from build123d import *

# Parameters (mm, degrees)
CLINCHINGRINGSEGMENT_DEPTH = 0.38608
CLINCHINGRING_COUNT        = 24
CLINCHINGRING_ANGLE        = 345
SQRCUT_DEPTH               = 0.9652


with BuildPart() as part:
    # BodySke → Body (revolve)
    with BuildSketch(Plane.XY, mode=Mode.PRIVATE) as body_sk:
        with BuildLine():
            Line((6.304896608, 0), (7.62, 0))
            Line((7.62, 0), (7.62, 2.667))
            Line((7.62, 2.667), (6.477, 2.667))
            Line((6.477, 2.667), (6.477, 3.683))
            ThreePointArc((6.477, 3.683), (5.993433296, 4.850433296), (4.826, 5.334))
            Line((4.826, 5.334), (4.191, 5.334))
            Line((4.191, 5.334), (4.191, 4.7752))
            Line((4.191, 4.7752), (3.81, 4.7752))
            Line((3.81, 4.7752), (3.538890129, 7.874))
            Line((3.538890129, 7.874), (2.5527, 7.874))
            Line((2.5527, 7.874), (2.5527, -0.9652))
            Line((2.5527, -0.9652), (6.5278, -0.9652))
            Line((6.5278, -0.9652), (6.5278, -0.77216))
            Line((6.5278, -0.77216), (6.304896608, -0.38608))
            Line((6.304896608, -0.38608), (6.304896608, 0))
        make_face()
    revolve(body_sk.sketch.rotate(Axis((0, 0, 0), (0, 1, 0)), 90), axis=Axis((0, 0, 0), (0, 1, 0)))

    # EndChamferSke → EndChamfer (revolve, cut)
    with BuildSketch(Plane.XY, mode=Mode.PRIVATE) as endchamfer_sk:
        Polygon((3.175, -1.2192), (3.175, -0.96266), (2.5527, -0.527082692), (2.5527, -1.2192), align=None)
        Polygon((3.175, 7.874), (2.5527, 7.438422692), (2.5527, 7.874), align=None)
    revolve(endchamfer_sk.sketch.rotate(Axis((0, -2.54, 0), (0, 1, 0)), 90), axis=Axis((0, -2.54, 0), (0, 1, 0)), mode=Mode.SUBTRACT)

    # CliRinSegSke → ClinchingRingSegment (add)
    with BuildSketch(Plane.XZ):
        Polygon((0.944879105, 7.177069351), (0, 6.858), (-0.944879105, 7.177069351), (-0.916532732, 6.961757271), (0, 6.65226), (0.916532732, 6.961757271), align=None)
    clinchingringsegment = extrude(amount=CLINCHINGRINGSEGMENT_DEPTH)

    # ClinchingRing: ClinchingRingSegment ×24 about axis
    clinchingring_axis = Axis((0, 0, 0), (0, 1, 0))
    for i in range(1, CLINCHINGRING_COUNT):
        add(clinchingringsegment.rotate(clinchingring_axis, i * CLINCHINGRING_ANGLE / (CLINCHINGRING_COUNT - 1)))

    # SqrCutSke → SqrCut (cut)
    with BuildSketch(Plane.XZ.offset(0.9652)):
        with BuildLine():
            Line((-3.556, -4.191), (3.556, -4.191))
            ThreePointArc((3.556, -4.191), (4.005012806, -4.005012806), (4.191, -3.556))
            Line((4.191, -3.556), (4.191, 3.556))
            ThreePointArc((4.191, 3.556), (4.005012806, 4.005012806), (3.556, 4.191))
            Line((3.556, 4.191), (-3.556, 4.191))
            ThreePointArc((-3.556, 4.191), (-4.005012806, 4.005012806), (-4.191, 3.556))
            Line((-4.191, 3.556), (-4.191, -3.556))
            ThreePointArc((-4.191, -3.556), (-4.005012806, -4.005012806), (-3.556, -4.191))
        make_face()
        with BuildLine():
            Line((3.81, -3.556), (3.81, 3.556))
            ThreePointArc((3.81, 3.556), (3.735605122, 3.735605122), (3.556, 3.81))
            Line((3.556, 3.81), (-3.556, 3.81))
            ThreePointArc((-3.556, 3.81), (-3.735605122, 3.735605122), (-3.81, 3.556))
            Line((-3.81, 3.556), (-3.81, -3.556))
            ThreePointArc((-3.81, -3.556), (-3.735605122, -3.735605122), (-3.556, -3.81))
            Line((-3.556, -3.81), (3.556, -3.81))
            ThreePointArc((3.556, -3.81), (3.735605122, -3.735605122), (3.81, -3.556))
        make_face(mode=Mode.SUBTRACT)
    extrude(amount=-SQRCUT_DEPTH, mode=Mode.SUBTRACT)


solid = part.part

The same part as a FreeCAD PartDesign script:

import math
import FreeCAD as App
import Part
import Sketcher
Q = App.Units.Quantity

doc = App.newDocument("Part")
body = doc.addObject("PartDesign::Body", "Body")

sketch1 = doc.addObject("Sketcher::SketchObject", "Sketch")
body.addObject(sketch1)
sketch1.AttachmentSupport = (doc.XY_Plane, [""])
sketch1.MapMode = "FlatFace"
sketch1.addGeometry([
    Part.LineSegment(App.Vector(6.3, 0, 0), App.Vector(7.62, 0, 0)),
    Part.LineSegment(App.Vector(7.62, 0, 0), App.Vector(7.62, 2.67, 0)),
    Part.LineSegment(App.Vector(7.62, 2.67, 0), App.Vector(6.48, 2.67, 0)),
    Part.LineSegment(App.Vector(6.48, 2.67, 0), App.Vector(6.48, 3.68, 0)),
    Part.ArcOfCircle(Part.Circle(App.Vector(4.83, 3.68, 0), App.Vector(0, 0, 1), 1.65), math.radians(0), math.radians(90)),
    Part.LineSegment(App.Vector(4.83, 5.33, 0), App.Vector(4.19, 5.33, 0)),
    Part.LineSegment(App.Vector(4.19, 5.33, 0), App.Vector(4.19, 4.78, 0)),
    Part.LineSegment(App.Vector(4.19, 4.78, 0), App.Vector(3.81, 4.78, 0)),
    Part.LineSegment(App.Vector(3.81, 4.78, 0), App.Vector(3.54, 7.87, 0)),
    Part.LineSegment(App.Vector(3.54, 7.87, 0), App.Vector(2.55, 7.87, 0)),
    Part.LineSegment(App.Vector(2.55, 7.87, 0), App.Vector(2.55, -0.97, 0)),
    Part.LineSegment(App.Vector(2.55, -0.97, 0), App.Vector(6.53, -0.97, 0)),
    Part.LineSegment(App.Vector(6.53, -0.97, 0), App.Vector(6.53, -0.77, 0)),
    Part.LineSegment(App.Vector(6.53, -0.77, 0), App.Vector(6.3, -0.39, 0)),
    Part.LineSegment(App.Vector(6.3, -0.39, 0), App.Vector(6.3, 0, 0)),
], False)
sketch1.addConstraint([
    Sketcher.Constraint("Coincident", 0, 2, 1, 1),
    Sketcher.Constraint("Coincident", 1, 2, 2, 1),
    Sketcher.Constraint("Coincident", 2, 2, 3, 1),
    Sketcher.Constraint("Tangent", 3, 2, 4, 1),
    Sketcher.Constraint("Tangent", 4, 2, 5, 1),
    Sketcher.Constraint("Coincident", 5, 2, 6, 1),
    Sketcher.Constraint("Coincident", 6, 2, 7, 1),
    Sketcher.Constraint("Coincident", 7, 2, 8, 1),
    Sketcher.Constraint("Coincident", 8, 2, 9, 1),
    Sketcher.Constraint("Coincident", 9, 2, 10, 1),
    Sketcher.Constraint("Coincident", 10, 2, 11, 1),
    Sketcher.Constraint("Coincident", 11, 2, 12, 1),
    Sketcher.Constraint("Coincident", 12, 2, 13, 1),
    Sketcher.Constraint("Coincident", 13, 2, 14, 1),
    Sketcher.Constraint("Coincident", 14, 2, 0, 1),
    Sketcher.Constraint("Horizontal", 0),
    Sketcher.Constraint("Vertical", 1),
    Sketcher.Constraint("Horizontal", 2),
    Sketcher.Constraint("Vertical", 3),
    Sketcher.Constraint("Horizontal", 5),
    Sketcher.Constraint("Vertical", 6),
    Sketcher.Constraint("Horizontal", 7),
    Sketcher.Constraint("Horizontal", 9),
    Sketcher.Constraint("Vertical", 10),
    Sketcher.Constraint("Horizontal", 11),
    Sketcher.Constraint("Vertical", 12),
    Sketcher.Constraint("Vertical", 14),
    Sketcher.Constraint("PointOnObject", 0, 2, -1),
    Sketcher.Constraint("Angle", 8, Q("95 deg")),
    Sketcher.Constraint("Angle", 13, Q("120 deg")),
    Sketcher.Constraint("Radius", 4, Q("0.065 in")),
    Sketcher.Constraint("DistanceY", 3, 1, 3, 2, Q("0.04 in")),
    Sketcher.Constraint("DistanceX", -1, 1, 0, 2, Q("0.3 in")),
    Sketcher.Constraint("DistanceY", 5, 2, 8, 2, Q("0.1 in")),
    Sketcher.Constraint("DistanceX", 2, 2, 2, 1, Q("0.045 in")),
    Sketcher.Constraint("DistanceX", 5, 2, 5, 1, Q("0.025 in")),
    Sketcher.Constraint("DistanceX", 7, 2, 7, 1, Q("0.015 in")),
    Sketcher.Constraint("DistanceY", 1, 1, 1, 2, Q("0.105 in")),
    Sketcher.Constraint("DistanceY", 6, 2, 6, 1, Q("0.022 in")),
    Sketcher.Constraint("DistanceY", 10, 2, 10, 1, Q("0.348 in")),
    Sketcher.Constraint("DistanceX", 11, 1, 11, 2, Q("0.1565 in")),
    Sketcher.Constraint("DistanceY", 12, 1, 12, 2, Q("0.0076 in")),
    Sketcher.Constraint("DistanceY", 14, 1, 14, 2, Q("0.0152 in")),
    Sketcher.Constraint("DistanceX", -1, 1, 11, 2, Q("0.257 in")),
])
revolution = doc.addObject("PartDesign::Revolution", "Revolution")
body.addObject(revolution)
revolution.Profile = sketch1
revolution.ReferenceAxis = (sketch1, ["V_Axis"])
revolution.Angle = 360

sketch2 = doc.addObject("Sketcher::SketchObject", "Sketch001")
body.addObject(sketch2)
sketch2.AttachmentSupport = (doc.XY_Plane, [""])
sketch2.MapMode = "FlatFace"
sketch2.addGeometry([
    Part.LineSegment(App.Vector(3.17, -1.22, 0), App.Vector(3.17, -0.96, 0)),
    Part.LineSegment(App.Vector(3.17, -0.96, 0), App.Vector(2.55, -0.53, 0)),
    Part.LineSegment(App.Vector(2.55, -0.53, 0), App.Vector(2.55, -1.22, 0)),
    Part.LineSegment(App.Vector(2.55, -1.22, 0), App.Vector(3.17, -1.22, 0)),
    Part.LineSegment(App.Vector(2.55, 7.44, 0), App.Vector(3.17, 7.87, 0)),
    Part.LineSegment(App.Vector(3.17, 7.87, 0), App.Vector(2.55, 7.87, 0)),
    Part.LineSegment(App.Vector(2.55, 7.87, 0), App.Vector(2.55, 7.44, 0)),
], False)
sketch2.addConstraint([
    Sketcher.Constraint("Coincident", 0, 2, 1, 1),
    Sketcher.Constraint("Coincident", 1, 2, 2, 1),
    Sketcher.Constraint("Coincident", 2, 2, 3, 1),
    Sketcher.Constraint("Coincident", 3, 2, 0, 1),
    Sketcher.Constraint("Coincident", 4, 2, 5, 1),
    Sketcher.Constraint("Coincident", 5, 2, 6, 1),
    Sketcher.Constraint("Coincident", 6, 2, 4, 1),
    Sketcher.Constraint("Vertical", 0),
    Sketcher.Constraint("Vertical", 2),
    Sketcher.Constraint("Horizontal", 3),
    Sketcher.Constraint("Horizontal", 5),
    Sketcher.Constraint("Vertical", 6),
    Sketcher.Constraint("Vertical", 3, 2, 4, 2),
    Sketcher.Constraint("Vertical", 2, 2, 5, 2),
    Sketcher.Constraint("Equal", 1, 4),
    Sketcher.Constraint("DistanceY", -1, 1, 4, 2, Q("0.31 in")),
    Sketcher.Constraint("Angle", 1, Q("145.01 deg")),
    Sketcher.Constraint("DistanceX", 3, 1, 3, 2, Q("0.0245 in")),
    Sketcher.Constraint("DistanceY", 0, 1, 0, 2, Q("0.0101 in")),
    Sketcher.Constraint("DistanceX", -1, 1, 0, 2, Q("0.125 in")),
    Sketcher.Constraint("DistanceY", 2, 2, -1, 1, Q("0.048 in")),
])
groove = doc.addObject("PartDesign::Groove", "Groove")
body.addObject(groove)
groove.Profile = sketch2
groove.ReferenceAxis = (sketch2, ["V_Axis"])
groove.Angle = 360

sketch3 = doc.addObject("Sketcher::SketchObject", "Sketch002")
body.addObject(sketch3)
sketch3.AttachmentSupport = (doc.XZ_Plane, [""])
sketch3.MapMode = "FlatFace"
sketch3.addGeometry([
    Part.LineSegment(App.Vector(0.94, 7.18, 0), App.Vector(0, 6.86, 0)),
    Part.LineSegment(App.Vector(0, 6.86, 0), App.Vector(-0.94, 7.18, 0)),
    Part.LineSegment(App.Vector(-0.94, 7.18, 0), App.Vector(-0.92, 6.96, 0)),
    Part.LineSegment(App.Vector(-0.92, 6.96, 0), App.Vector(0, 6.65, 0)),
    Part.LineSegment(App.Vector(0, 6.65, 0), App.Vector(0.92, 6.96, 0)),
    Part.LineSegment(App.Vector(0.92, 6.96, 0), App.Vector(0.94, 7.18, 0)),
], False)
sketch3.addConstraint([
    Sketcher.Constraint("Coincident", 0, 2, 1, 1),
    Sketcher.Constraint("Coincident", 1, 2, 2, 1),
    Sketcher.Constraint("Coincident", 2, 2, 3, 1),
    Sketcher.Constraint("Coincident", 3, 2, 4, 1),
    Sketcher.Constraint("Coincident", 4, 2, 5, 1),
    Sketcher.Constraint("Coincident", 5, 2, 0, 1),
    Sketcher.Constraint("Symmetric", 2, 2, 4, 2, -2),
    Sketcher.Constraint("Symmetric", 1, 2, 5, 2, -2),
    Sketcher.Constraint("PointOnObject", 0, 2, -2),
    Sketcher.Constraint("PointOnObject", 3, 2, -2),
    Sketcher.Constraint("Parallel", 1, 3),
    Sketcher.Constraint("Angle", 2, Q("-82.5 deg")),
    Sketcher.Constraint("DistanceY", -1, 1, 0, 2, Q("0.27 in")),
    Sketcher.Constraint("DistanceX", 1, 2, -1, 1, Q("0.0372 in")),
    Sketcher.Constraint("DistanceY", -1, 1, 3, 2, Q("0.2619 in")),
    Sketcher.Constraint("Distance", 2, 0.21717),
])
pad1 = doc.addObject("PartDesign::Pad", "Pad")
body.addObject(pad1)
pad1.Profile = sketch3
pad1.Length = Q("0.0152 in")
doc.recompute()

polarpattern = doc.addObject("PartDesign::PolarPattern", "PolarPattern")
body.addObject(polarpattern)
polarpattern.Originals = [pad1]
polarpattern.Axis = (doc.Y_Axis, [""])
polarpattern.Angle = 360
polarpattern.Occurrences = 24
body.Tip = polarpattern

sketch4 = doc.addObject("Sketcher::SketchObject", "Sketch003")
body.addObject(sketch4)
sketch4.AttachmentSupport = (doc.XZ_Plane, [""])
sketch4.MapMode = "FlatFace"
sketch4.AttachmentOffset = App.Placement(App.Vector(0, 0, 0.038 * 25.4), App.Rotation())
sketch4.addGeometry([
    Part.LineSegment(App.Vector(-3.56, -4.19, 0), App.Vector(3.56, -4.19, 0)),
    Part.ArcOfCircle(Part.Circle(App.Vector(3.56, -3.56, 0), App.Vector(0, 0, 1), 0.64), math.radians(-90), math.radians(0)),
    Part.LineSegment(App.Vector(4.19, -3.56, 0), App.Vector(4.19, 3.56, 0)),
    Part.ArcOfCircle(Part.Circle(App.Vector(3.56, 3.56, 0), App.Vector(0, 0, 1), 0.64), math.radians(0), math.radians(90)),
    Part.LineSegment(App.Vector(3.56, 4.19, 0), App.Vector(-3.56, 4.19, 0)),
    Part.ArcOfCircle(Part.Circle(App.Vector(-3.56, 3.56, 0), App.Vector(0, 0, 1), 0.64), math.radians(90), math.radians(180)),
    Part.LineSegment(App.Vector(-4.19, 3.56, 0), App.Vector(-4.19, -3.56, 0)),
    Part.ArcOfCircle(Part.Circle(App.Vector(-3.56, -3.56, 0), App.Vector(0, 0, 1), 0.64), math.radians(180), math.radians(270)),
    Part.LineSegment(App.Vector(3.81, 3.56, 0), App.Vector(3.81, -3.56, 0)),
    Part.ArcOfCircle(Part.Circle(App.Vector(3.56, -3.56, 0), App.Vector(0, 0, 1), 0.25), math.radians(-90), math.radians(0)),
    Part.LineSegment(App.Vector(3.56, -3.81, 0), App.Vector(-3.56, -3.81, 0)),
    Part.ArcOfCircle(Part.Circle(App.Vector(-3.56, -3.56, 0), App.Vector(0, 0, 1), 0.25), math.radians(-180), math.radians(-90)),
    Part.LineSegment(App.Vector(-3.81, -3.56, 0), App.Vector(-3.81, 3.56, 0)),
    Part.ArcOfCircle(Part.Circle(App.Vector(-3.56, 3.56, 0), App.Vector(0, 0, 1), 0.25), math.radians(90), math.radians(180)),
    Part.LineSegment(App.Vector(-3.56, 3.81, 0), App.Vector(3.56, 3.81, 0)),
    Part.ArcOfCircle(Part.Circle(App.Vector(3.56, 3.56, 0), App.Vector(0, 0, 1), 0.25), math.radians(0), math.radians(90)),
], False)
sketch4.addConstraint([
    Sketcher.Constraint("Tangent", 0, 2, 1, 1),
    Sketcher.Constraint("Tangent", 1, 2, 2, 1),
    Sketcher.Constraint("Tangent", 2, 2, 3, 1),
    Sketcher.Constraint("Tangent", 3, 2, 4, 1),
    Sketcher.Constraint("Tangent", 4, 2, 5, 1),
    Sketcher.Constraint("Tangent", 5, 2, 6, 1),
    Sketcher.Constraint("Tangent", 6, 2, 7, 1),
    Sketcher.Constraint("Tangent", 7, 2, 0, 1),
    Sketcher.Constraint("Tangent", 8, 2, 9, 2),
    Sketcher.Constraint("Tangent", 9, 1, 10, 1),
    Sketcher.Constraint("Tangent", 10, 2, 11, 2),
    Sketcher.Constraint("Tangent", 11, 1, 12, 1),
    Sketcher.Constraint("Tangent", 12, 2, 13, 2),
    Sketcher.Constraint("Tangent", 13, 1, 14, 1),
    Sketcher.Constraint("Tangent", 14, 2, 15, 2),
    Sketcher.Constraint("Tangent", 15, 1, 8, 1),
    Sketcher.Constraint("Horizontal", 0),
    Sketcher.Constraint("Vertical", 2),
    Sketcher.Constraint("Horizontal", 4),
    Sketcher.Constraint("Vertical", 6),
    Sketcher.Constraint("Vertical", 8),
    Sketcher.Constraint("Horizontal", 10),
    Sketcher.Constraint("Vertical", 12),
    Sketcher.Constraint("Horizontal", 14),
    Sketcher.Constraint("Coincident", 9, 3, 1, 3),
    Sketcher.Constraint("Coincident", 11, 3, 7, 3),
    Sketcher.Constraint("Coincident", 13, 3, 5, 3),
    Sketcher.Constraint("Equal", 1, 3),
    Sketcher.Constraint("Equal", 3, 5),
    Sketcher.Constraint("Equal", 5, 7),
    Sketcher.Constraint("Equal", 13, 15),
    Sketcher.Constraint("Symmetric", 1, 3, 5, 3, -1, 1),
    Sketcher.Constraint("Equal", 14, 2),
    Sketcher.Constraint("Radius", 9, Q("0.01 in")),
    Sketcher.Constraint("Radius", 1, Q("0.025 in")),
    Sketcher.Constraint("DistanceX", 0, 1, 0, 2, Q("0.28 in")),
])
pocket1 = doc.addObject("PartDesign::Pocket", "Pocket")
body.addObject(pocket1)
pocket1.Profile = sketch4
pocket1.Length = Q("0.038 in")

doc.recompute()
